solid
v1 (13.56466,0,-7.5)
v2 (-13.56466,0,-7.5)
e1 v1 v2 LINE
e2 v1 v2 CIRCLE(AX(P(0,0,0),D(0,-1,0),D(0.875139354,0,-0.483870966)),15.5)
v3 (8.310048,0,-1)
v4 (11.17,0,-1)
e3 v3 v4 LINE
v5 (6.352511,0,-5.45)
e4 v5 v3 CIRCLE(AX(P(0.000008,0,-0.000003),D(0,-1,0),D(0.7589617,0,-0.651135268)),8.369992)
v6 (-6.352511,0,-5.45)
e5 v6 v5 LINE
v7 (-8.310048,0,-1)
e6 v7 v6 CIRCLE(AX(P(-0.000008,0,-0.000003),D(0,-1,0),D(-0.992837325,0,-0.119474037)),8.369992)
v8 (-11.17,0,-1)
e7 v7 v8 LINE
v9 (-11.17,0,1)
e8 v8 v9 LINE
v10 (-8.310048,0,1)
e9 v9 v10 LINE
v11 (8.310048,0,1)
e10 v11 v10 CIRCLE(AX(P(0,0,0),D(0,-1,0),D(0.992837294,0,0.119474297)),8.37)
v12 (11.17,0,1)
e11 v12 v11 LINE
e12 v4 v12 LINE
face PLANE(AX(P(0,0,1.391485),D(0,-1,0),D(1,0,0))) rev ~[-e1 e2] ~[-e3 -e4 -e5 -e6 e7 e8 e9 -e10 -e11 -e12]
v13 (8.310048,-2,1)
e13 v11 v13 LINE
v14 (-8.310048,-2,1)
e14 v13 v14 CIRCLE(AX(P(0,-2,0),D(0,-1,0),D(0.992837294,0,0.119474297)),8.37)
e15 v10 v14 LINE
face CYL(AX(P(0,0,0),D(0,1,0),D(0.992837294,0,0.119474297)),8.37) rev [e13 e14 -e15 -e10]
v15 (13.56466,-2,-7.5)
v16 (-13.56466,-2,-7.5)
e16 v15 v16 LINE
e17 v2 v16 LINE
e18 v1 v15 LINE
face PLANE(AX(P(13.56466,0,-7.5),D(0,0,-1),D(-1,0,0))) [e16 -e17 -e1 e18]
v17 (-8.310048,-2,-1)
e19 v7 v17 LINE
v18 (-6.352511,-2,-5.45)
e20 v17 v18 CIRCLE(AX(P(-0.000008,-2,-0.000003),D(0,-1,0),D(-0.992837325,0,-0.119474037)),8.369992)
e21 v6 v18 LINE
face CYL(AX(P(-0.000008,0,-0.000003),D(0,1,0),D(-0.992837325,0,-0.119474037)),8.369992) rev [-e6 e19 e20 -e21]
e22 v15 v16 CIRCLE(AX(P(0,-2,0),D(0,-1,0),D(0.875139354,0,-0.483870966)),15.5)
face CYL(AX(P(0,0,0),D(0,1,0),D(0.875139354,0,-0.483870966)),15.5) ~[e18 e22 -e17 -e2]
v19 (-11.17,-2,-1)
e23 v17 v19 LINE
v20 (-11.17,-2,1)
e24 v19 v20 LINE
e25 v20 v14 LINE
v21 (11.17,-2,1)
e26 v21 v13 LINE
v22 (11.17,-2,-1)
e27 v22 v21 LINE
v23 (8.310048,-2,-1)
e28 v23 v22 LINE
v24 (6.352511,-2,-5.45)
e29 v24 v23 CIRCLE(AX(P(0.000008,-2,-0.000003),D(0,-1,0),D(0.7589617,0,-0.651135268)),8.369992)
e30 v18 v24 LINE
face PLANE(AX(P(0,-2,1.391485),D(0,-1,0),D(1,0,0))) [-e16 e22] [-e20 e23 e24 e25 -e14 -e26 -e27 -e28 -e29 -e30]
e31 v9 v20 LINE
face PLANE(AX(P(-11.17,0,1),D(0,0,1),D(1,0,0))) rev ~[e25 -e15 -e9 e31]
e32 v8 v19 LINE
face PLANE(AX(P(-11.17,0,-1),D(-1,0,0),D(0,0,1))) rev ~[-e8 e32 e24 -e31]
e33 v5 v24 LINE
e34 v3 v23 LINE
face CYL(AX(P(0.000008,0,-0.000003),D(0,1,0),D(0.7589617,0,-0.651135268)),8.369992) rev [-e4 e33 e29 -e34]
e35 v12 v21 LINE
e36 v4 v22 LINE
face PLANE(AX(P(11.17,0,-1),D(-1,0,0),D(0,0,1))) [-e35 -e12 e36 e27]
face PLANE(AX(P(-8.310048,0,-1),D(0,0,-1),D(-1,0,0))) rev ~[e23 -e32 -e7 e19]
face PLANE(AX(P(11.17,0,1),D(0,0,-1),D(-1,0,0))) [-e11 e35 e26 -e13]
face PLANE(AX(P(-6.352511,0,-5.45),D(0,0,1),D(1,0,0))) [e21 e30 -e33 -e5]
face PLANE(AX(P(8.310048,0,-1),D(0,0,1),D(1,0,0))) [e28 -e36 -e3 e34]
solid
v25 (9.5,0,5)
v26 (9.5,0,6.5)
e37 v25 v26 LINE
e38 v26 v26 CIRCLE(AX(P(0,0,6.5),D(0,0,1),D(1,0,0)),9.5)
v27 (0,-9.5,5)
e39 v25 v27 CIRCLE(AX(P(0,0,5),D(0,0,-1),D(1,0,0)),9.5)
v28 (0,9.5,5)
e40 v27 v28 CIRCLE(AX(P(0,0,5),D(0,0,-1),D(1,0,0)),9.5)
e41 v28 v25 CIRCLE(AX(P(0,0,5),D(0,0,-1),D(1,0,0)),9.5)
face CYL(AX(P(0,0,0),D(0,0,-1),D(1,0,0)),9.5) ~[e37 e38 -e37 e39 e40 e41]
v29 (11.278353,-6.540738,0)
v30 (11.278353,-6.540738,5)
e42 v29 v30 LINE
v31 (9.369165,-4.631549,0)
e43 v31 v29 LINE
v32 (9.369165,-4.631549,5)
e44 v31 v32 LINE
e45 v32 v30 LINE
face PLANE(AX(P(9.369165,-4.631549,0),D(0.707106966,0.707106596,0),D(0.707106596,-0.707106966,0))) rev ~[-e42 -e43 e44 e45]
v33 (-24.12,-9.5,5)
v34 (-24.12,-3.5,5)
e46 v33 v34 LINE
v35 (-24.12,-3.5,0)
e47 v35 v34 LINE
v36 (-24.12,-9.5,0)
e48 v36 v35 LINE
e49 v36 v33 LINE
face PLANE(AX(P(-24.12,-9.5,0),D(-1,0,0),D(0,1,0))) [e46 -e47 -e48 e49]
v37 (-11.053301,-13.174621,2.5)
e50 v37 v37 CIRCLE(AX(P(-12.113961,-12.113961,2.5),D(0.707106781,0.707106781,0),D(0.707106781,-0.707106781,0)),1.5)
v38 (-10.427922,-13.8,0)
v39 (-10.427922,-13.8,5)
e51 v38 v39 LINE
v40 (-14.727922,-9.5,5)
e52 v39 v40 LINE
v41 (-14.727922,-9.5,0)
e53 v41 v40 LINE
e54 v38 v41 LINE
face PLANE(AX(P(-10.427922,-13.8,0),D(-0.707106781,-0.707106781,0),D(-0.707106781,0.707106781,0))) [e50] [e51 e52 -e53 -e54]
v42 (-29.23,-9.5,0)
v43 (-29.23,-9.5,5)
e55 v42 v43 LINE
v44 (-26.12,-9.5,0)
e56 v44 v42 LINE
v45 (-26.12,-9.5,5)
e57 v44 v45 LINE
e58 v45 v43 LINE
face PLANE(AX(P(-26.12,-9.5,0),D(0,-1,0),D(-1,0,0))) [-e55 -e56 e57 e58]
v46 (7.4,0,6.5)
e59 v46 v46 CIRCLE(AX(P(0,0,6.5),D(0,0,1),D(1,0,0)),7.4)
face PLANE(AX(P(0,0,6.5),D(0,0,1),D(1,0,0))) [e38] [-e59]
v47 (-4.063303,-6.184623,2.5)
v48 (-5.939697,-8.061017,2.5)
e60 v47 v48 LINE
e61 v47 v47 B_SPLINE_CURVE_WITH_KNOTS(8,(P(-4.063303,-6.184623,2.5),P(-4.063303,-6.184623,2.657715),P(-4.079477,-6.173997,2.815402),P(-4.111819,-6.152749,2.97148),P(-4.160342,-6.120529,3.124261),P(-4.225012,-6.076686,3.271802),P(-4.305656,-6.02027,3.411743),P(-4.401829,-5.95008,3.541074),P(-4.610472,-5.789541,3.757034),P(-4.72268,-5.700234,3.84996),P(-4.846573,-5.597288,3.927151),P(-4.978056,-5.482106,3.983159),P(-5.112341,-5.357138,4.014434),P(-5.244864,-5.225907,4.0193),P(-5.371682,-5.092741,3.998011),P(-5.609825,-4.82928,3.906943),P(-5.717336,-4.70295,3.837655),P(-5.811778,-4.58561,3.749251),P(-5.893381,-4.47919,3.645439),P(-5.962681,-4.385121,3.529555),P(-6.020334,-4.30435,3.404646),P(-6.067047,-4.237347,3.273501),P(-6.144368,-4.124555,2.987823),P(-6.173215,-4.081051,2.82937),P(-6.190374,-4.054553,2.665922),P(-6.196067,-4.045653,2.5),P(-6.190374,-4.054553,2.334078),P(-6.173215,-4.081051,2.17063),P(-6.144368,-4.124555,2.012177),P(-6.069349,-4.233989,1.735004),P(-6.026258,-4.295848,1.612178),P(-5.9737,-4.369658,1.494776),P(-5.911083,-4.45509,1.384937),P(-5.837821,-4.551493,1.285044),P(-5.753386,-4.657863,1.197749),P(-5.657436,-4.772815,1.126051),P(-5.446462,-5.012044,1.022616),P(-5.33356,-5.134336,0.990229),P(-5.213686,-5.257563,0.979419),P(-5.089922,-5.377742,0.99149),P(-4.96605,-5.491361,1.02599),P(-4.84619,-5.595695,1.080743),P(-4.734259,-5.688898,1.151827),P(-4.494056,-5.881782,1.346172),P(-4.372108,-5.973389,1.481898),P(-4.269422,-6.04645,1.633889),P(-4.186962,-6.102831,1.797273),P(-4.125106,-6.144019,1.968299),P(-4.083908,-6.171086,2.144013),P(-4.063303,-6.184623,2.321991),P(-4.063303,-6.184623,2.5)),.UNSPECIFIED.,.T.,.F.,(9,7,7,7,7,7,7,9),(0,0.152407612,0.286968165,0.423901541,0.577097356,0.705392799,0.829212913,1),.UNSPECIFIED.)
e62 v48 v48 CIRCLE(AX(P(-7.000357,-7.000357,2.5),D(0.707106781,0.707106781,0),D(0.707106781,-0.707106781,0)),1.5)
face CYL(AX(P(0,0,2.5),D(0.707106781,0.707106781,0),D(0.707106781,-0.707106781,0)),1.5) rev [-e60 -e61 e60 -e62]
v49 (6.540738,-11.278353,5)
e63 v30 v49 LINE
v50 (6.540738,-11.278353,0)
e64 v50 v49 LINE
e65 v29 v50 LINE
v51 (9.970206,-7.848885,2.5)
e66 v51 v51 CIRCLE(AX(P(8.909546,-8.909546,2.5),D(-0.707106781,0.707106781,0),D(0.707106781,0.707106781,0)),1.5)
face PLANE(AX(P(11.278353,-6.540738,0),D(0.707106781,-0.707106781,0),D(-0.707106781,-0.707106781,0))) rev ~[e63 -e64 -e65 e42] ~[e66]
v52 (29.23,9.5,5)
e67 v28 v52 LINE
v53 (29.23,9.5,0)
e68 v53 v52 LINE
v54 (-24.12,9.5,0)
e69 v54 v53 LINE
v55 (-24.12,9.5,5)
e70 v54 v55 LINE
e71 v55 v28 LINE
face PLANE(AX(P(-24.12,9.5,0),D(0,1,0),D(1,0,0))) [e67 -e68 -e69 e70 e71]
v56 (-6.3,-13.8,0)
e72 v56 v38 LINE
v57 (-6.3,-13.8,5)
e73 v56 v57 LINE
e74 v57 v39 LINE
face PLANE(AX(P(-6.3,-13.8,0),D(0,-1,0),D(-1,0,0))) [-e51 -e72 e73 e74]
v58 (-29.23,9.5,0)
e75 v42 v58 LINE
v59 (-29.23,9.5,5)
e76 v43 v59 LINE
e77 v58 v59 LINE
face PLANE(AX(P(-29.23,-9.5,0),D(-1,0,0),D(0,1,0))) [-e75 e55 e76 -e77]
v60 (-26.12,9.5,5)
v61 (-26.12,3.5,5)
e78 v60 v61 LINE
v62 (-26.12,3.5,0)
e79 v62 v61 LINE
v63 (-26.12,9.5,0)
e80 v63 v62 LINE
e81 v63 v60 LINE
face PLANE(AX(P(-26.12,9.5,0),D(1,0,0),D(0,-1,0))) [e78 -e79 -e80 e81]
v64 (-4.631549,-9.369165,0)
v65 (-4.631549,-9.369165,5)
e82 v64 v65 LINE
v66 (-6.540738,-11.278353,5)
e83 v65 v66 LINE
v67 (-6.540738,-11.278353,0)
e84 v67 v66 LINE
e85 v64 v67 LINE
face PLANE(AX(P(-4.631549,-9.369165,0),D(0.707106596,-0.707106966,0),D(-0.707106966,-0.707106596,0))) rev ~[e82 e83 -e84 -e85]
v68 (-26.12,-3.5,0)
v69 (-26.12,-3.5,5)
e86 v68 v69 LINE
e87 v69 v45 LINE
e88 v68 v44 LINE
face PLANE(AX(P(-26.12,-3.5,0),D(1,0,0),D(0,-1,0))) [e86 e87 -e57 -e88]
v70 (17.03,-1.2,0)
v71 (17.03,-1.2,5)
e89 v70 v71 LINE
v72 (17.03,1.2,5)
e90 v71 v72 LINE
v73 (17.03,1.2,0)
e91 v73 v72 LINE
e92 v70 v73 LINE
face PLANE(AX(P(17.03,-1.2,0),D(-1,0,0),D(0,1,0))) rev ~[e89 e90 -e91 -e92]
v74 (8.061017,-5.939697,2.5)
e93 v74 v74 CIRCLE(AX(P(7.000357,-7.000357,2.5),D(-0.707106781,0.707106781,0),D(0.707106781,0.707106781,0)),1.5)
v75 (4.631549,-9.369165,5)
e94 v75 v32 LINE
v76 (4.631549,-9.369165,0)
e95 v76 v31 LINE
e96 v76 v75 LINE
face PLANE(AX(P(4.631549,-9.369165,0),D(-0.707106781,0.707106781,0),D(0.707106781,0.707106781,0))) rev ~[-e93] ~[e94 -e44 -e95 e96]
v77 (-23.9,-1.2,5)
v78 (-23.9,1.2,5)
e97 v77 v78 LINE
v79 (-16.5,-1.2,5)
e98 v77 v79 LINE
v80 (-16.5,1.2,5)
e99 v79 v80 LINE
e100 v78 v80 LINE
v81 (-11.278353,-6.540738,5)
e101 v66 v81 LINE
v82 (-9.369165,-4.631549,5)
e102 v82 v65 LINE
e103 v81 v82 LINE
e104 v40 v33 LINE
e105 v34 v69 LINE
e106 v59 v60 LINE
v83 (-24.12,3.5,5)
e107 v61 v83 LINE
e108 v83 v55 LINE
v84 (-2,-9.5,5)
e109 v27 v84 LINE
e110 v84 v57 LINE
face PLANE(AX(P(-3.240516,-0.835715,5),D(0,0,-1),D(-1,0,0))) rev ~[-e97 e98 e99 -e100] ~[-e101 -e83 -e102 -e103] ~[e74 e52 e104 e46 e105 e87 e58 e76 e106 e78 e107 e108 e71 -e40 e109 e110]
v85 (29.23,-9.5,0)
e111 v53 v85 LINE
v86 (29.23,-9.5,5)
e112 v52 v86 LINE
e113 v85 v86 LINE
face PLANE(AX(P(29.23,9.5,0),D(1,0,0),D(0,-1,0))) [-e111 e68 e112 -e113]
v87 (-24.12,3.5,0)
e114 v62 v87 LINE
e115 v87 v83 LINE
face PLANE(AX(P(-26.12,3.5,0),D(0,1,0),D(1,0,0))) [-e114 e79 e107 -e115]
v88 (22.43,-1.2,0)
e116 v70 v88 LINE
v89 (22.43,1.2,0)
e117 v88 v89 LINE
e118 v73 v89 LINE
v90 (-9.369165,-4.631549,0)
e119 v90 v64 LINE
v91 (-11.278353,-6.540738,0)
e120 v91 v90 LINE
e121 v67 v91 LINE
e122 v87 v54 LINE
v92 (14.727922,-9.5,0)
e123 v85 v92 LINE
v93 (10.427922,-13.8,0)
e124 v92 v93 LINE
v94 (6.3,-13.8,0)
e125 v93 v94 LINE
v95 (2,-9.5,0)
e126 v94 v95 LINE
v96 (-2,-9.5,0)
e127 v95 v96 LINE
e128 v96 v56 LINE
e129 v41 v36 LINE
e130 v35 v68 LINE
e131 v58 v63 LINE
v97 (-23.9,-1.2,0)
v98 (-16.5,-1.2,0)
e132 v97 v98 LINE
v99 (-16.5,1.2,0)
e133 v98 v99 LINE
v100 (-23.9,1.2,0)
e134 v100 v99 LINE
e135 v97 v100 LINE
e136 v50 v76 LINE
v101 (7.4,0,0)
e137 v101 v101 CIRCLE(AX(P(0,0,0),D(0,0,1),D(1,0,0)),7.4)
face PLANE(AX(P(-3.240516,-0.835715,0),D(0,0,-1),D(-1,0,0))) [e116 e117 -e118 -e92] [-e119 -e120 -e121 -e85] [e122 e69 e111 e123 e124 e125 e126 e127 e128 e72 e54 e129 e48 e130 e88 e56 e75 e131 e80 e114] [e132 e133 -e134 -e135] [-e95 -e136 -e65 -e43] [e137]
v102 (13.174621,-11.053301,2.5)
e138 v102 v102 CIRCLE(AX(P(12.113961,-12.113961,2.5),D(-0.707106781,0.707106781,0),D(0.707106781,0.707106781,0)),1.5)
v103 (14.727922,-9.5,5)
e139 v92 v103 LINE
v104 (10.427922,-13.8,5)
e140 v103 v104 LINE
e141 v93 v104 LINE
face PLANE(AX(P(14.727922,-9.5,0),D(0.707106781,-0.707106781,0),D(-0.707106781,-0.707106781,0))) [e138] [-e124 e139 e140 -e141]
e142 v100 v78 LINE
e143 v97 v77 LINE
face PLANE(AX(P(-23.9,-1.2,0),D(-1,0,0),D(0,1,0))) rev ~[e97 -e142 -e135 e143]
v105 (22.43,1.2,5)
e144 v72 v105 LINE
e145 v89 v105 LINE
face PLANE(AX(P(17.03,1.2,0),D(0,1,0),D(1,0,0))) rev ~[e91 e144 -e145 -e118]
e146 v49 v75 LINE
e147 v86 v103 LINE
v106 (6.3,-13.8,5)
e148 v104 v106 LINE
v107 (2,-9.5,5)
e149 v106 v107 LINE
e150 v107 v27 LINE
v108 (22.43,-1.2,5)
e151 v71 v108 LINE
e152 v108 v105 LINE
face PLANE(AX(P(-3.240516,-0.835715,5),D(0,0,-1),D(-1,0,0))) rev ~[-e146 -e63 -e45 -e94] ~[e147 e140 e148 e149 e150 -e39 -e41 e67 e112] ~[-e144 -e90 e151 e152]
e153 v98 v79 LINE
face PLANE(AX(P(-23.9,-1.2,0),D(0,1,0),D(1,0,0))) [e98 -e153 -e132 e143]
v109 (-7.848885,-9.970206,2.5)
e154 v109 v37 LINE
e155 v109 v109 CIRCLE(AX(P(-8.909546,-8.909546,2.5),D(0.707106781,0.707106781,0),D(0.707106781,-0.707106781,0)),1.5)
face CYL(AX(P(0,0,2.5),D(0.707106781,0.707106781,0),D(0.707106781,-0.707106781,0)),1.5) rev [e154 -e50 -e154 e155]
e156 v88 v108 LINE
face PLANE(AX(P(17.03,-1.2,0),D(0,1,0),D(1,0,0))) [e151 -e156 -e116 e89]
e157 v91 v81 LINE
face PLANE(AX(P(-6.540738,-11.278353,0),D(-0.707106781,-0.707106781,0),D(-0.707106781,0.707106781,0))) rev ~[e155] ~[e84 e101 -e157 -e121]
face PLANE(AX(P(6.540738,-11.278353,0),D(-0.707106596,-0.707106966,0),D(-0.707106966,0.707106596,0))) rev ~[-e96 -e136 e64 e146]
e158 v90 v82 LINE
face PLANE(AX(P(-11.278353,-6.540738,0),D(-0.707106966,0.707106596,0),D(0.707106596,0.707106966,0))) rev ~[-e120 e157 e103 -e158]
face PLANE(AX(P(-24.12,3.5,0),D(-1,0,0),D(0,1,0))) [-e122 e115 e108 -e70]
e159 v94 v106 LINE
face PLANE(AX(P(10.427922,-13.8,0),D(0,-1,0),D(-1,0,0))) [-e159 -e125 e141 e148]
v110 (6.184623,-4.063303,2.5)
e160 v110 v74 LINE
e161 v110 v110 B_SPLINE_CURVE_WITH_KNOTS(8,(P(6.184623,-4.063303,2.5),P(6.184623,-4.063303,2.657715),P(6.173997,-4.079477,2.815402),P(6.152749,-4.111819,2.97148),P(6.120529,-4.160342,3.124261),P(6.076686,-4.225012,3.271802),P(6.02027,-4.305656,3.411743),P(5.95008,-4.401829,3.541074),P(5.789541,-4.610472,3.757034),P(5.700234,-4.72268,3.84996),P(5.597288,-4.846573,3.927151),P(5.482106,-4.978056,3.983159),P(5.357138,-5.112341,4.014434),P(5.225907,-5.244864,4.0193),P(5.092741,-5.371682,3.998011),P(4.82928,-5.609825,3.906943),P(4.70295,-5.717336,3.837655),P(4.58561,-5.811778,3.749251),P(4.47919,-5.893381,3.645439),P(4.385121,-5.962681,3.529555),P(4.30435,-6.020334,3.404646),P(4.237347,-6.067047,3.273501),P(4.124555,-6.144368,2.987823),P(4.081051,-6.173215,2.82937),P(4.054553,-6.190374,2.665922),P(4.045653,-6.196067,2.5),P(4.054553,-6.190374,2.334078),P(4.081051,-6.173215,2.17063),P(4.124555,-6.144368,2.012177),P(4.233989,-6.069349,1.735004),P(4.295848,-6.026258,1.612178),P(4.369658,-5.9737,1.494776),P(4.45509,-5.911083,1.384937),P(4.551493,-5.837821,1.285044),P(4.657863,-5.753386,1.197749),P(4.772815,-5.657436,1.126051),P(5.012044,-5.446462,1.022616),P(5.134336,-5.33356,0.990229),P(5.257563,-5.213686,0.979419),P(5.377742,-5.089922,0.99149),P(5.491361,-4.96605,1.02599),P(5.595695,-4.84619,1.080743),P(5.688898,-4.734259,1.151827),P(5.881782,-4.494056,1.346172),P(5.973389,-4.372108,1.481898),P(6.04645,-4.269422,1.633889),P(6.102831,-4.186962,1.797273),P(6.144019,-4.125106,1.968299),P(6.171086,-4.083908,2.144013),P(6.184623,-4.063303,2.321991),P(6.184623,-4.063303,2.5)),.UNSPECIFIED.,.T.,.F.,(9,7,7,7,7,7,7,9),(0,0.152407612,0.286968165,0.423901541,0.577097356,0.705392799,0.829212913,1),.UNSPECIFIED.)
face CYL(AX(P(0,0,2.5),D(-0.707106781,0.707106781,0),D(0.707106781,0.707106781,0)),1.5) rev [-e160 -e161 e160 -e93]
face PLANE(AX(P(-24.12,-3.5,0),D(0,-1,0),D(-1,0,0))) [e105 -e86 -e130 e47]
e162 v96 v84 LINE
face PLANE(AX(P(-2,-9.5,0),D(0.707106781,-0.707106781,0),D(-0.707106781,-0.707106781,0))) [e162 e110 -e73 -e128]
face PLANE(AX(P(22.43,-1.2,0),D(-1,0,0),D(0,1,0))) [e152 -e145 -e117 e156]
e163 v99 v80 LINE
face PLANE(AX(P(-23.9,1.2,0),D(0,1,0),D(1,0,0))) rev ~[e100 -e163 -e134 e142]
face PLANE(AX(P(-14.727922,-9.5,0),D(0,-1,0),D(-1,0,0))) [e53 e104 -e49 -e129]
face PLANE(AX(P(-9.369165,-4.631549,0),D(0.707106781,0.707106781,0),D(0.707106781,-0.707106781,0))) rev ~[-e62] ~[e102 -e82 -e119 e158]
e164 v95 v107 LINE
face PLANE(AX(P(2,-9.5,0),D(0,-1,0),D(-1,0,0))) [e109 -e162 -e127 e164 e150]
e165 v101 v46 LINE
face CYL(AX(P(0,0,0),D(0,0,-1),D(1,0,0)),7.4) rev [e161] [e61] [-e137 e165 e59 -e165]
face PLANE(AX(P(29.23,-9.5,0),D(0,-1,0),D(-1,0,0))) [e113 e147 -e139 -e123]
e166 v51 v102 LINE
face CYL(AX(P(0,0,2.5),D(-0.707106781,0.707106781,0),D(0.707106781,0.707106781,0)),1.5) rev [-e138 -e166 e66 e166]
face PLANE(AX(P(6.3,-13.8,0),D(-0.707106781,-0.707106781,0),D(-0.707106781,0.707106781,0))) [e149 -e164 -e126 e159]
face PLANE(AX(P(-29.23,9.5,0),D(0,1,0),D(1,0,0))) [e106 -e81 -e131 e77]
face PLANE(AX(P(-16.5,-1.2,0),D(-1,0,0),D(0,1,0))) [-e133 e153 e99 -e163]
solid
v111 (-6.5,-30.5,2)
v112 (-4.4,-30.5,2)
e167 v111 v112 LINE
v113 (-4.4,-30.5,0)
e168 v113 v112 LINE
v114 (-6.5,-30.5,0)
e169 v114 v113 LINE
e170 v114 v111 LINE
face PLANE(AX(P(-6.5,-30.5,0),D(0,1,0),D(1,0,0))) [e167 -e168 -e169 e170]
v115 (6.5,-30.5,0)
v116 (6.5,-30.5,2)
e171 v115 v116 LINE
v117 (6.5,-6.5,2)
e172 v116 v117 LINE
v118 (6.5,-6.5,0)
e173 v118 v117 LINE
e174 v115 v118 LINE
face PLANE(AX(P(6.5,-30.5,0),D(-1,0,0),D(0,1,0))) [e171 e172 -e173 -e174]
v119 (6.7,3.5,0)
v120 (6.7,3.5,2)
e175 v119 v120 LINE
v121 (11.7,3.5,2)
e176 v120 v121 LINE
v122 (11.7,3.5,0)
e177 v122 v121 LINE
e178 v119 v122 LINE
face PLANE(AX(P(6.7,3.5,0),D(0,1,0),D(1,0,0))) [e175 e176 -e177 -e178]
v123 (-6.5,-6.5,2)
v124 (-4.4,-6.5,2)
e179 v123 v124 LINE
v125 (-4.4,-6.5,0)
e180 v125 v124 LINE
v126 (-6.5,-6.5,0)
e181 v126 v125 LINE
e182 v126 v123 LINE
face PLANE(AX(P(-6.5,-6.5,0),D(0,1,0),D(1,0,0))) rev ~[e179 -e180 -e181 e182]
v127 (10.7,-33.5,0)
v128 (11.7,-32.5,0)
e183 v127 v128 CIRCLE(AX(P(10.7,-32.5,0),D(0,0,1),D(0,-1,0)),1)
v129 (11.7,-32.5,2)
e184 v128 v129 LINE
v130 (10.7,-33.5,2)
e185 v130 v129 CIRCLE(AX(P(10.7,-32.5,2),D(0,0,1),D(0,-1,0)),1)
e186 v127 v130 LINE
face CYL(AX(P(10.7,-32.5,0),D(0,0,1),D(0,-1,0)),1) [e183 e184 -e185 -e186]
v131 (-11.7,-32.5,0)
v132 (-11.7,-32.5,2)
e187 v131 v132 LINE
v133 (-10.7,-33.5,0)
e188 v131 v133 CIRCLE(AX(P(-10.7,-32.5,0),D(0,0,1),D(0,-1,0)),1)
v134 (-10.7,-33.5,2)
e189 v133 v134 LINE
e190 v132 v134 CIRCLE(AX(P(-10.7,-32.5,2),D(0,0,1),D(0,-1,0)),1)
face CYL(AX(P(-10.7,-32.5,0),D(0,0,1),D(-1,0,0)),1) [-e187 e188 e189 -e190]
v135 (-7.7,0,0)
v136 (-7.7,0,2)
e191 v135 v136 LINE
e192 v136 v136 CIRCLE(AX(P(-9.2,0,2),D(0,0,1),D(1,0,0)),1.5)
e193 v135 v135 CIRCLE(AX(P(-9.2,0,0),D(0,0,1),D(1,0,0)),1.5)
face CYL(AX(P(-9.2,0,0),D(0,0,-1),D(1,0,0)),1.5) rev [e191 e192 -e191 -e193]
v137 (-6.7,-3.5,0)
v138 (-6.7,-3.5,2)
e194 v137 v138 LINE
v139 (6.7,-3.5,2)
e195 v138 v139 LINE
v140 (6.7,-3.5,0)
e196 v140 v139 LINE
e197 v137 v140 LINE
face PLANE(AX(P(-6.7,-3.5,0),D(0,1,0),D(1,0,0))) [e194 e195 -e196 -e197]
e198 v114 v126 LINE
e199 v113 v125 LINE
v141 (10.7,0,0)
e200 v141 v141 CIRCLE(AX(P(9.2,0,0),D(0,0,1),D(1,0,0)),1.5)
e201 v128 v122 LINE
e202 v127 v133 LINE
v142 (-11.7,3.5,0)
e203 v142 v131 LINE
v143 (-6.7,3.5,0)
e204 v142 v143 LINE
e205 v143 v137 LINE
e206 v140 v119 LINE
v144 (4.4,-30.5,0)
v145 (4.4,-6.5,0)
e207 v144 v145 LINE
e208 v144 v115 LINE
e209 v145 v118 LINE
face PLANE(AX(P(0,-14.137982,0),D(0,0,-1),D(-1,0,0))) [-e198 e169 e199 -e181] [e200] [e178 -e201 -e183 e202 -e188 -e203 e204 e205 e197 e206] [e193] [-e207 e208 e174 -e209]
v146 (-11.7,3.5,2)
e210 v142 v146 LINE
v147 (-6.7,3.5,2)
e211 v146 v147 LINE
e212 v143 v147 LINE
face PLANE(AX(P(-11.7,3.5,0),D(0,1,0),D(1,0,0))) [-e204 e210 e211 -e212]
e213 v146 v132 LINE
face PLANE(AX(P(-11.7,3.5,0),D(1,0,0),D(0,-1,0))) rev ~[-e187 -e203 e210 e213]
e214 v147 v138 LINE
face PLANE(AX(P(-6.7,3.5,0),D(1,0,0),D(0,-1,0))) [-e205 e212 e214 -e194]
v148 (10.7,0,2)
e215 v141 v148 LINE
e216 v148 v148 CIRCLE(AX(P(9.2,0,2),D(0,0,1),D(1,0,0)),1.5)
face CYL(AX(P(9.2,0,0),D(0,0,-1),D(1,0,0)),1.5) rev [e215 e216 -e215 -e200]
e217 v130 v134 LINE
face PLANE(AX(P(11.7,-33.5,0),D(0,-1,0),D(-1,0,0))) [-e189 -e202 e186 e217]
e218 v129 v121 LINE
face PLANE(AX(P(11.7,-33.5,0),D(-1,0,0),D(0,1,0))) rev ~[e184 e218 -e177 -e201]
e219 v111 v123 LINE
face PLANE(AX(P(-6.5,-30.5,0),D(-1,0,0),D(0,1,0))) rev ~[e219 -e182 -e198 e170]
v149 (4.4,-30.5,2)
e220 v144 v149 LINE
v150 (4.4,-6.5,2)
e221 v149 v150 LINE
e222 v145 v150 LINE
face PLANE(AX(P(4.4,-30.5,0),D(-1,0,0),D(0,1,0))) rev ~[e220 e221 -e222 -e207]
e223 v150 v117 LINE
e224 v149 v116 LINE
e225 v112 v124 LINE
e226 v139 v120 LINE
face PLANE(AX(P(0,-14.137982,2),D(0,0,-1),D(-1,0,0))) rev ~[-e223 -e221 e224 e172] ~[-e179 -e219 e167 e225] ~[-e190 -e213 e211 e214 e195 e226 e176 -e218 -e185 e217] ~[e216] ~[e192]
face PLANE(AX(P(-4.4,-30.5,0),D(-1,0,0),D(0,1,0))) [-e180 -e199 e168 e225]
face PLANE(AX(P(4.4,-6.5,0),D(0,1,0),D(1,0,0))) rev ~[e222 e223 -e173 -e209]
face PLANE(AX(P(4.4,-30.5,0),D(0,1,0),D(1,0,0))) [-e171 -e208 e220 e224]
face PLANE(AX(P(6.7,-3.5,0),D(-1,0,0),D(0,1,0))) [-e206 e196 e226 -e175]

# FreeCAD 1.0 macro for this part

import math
import FreeCAD as App
import Part
import Sketcher
Q = App.Units.Quantity


def edges_at(feature, points):
    """Names of the edges that pass closest to the given points."""
    edges = feature.Shape.Edges
    near = lambda p: min(range(len(edges)), key=lambda i: edges[i].distToShape(Part.Vertex(*p))[0])
    return sorted({f"Edge{near(p) + 1}" for p in points})

doc = App.newDocument("Part")
params = doc.addObject("Spreadsheet::Sheet", "Params")
for row, (alias, value) in enumerate([
    ("sketch1_diameter", "3 mm"),
    ("sketch1_width", "5 mm"),
    ("sketch1_height", "37 mm"),
    ("sketch1_height2", "7 mm"),
    ("sketch1_height3", "24 mm"),
    ("pad1_length", "2 mm"),
    ("fillet_radius", "1 mm"),
    ("sketch2_diameter", "14.8 mm"),
    ("sketch2_width", "2 mm"),
    ("sketch2_width2", "4 mm"),
    ("sketch2_height", "19 mm"),
    ("sketch2_height2", "6 mm"),
    ("pad2_length", "5 mm"),
    ("sketch3_diameter", "19 mm"),
    ("sketch3_diameter2", "14.8 mm"),
    ("pad3_length", "6.5 mm"),
    ("sketch4_diameter", "3 mm"),
    ("sketch5_diameter", "2.1 mm"),
    ("pocket2_length", "15 mm"),
    ("sketch6_radius", "15.5 mm"),
    ("sketch6_height", "2 mm"),
    ("sketch6_radius2", "8.37 mm"),
    ("pad4_length", "2 mm"),
], start=1):
    params.set(f"A{row}", alias)
    params.set(f"B{row}", "=" + value)
    params.setAlias(f"B{row}", alias)

body = doc.addObject("PartDesign::Body", "Body")

# Sketch on XY plane
sketch1 = doc.addObject("Sketcher::SketchObject", "Sketch")
body.addObject(sketch1)
sketch1.AttachmentSupport = (doc.XY_Plane, [""])
sketch1.MapMode = "FlatFace"
sketch1.addGeometry([
    Part.LineSegment(App.Vector(-6.7, 3.5, 0), App.Vector(-11.7, 3.5, 0)),  # 0
    Part.LineSegment(App.Vector(-11.7, 3.5, 0), App.Vector(-11.7, -33.5, 0)),  # 1
    Part.LineSegment(App.Vector(-11.7, -33.5, 0), App.Vector(11.7, -33.5, 0)),  # 2
    Part.LineSegment(App.Vector(11.7, -33.5, 0), App.Vector(11.7, 3.5, 0)),  # 3
    Part.LineSegment(App.Vector(11.7, 3.5, 0), App.Vector(6.7, 3.5, 0)),  # 4
    Part.LineSegment(App.Vector(6.7, 3.5, 0), App.Vector(6.7, -3.5, 0)),  # 5
    Part.LineSegment(App.Vector(6.7, -3.5, 0), App.Vector(-6.7, -3.5, 0)),  # 6
    Part.LineSegment(App.Vector(-6.7, -3.5, 0), App.Vector(-6.7, 3.5, 0)),  # 7
    Part.LineSegment(App.Vector(4.4, -30.5, 0), App.Vector(4.4, -6.5, 0)),  # 8
    Part.LineSegment(App.Vector(4.4, -6.5, 0), App.Vector(6.5, -6.5, 0)),  # 9
    Part.LineSegment(App.Vector(6.5, -6.5, 0), App.Vector(6.5, -30.5, 0)),  # 10
    Part.LineSegment(App.Vector(6.5, -30.5, 0), App.Vector(4.4, -30.5, 0)),  # 11
    Part.LineSegment(App.Vector(-6.5, -30.5, 0), App.Vector(-6.5, -6.5, 0)),  # 12
    Part.LineSegment(App.Vector(-6.5, -6.5, 0), App.Vector(-4.4, -6.5, 0)),  # 13
    Part.LineSegment(App.Vector(-4.4, -6.5, 0), App.Vector(-4.4, -30.5, 0)),  # 14
    Part.LineSegment(App.Vector(-4.4, -30.5, 0), App.Vector(-6.5, -30.5, 0)),  # 15
    Part.Circle(App.Vector(9.2, 0, 0), App.Vector(0, 0, 1), 1.5),  # 16
    Part.Circle(App.Vector(-9.2, 0, 0), App.Vector(0, 0, 1), 1.5),  # 17
], False)
sketch1.addConstraint([
    Sketcher.Constraint("Coincident", 0, 2, 1, 1),
    Sketcher.Constraint("Coincident", 1, 2, 2, 1),
    Sketcher.Constraint("Coincident", 2, 2, 3, 1),
    Sketcher.Constraint("Coincident", 3, 2, 4, 1),
    Sketcher.Constraint("Coincident", 4, 2, 5, 1),
    Sketcher.Constraint("Coincident", 5, 2, 6, 1),
    Sketcher.Constraint("Coincident", 6, 2, 7, 1),
    Sketcher.Constraint("Coincident", 7, 2, 0, 1),
    Sketcher.Constraint("Coincident", 8, 2, 9, 1),
    Sketcher.Constraint("Coincident", 9, 2, 10, 1),
    Sketcher.Constraint("Coincident", 10, 2, 11, 1),
    Sketcher.Constraint("Coincident", 11, 2, 8, 1),
    Sketcher.Constraint("Coincident", 12, 2, 13, 1),
    Sketcher.Constraint("Coincident", 13, 2, 14, 1),
    Sketcher.Constraint("Coincident", 14, 2, 15, 1),
    Sketcher.Constraint("Coincident", 15, 2, 12, 1),
    Sketcher.Constraint("Horizontal", 0),
    Sketcher.Constraint("Vertical", 1),
    Sketcher.Constraint("Horizontal", 2),
    Sketcher.Constraint("Vertical", 3),
    Sketcher.Constraint("Horizontal", 4),
    Sketcher.Constraint("Vertical", 5),
    Sketcher.Constraint("Horizontal", 6),
    Sketcher.Constraint("Vertical", 7),
    Sketcher.Constraint("Vertical", 8),
    Sketcher.Constraint("Horizontal", 9),
    Sketcher.Constraint("Vertical", 10),
    Sketcher.Constraint("Horizontal", 11),
    Sketcher.Constraint("Vertical", 12),
    Sketcher.Constraint("Horizontal", 13),
    Sketcher.Constraint("Vertical", 14),
    Sketcher.Constraint("Horizontal", 15),
    Sketcher.Constraint("Equal", 16, 17),
    Sketcher.Constraint("Symmetric", 16, 3, 17, 3, -1, 1),
    Sketcher.Constraint("Symmetric", 4, 2, 6, 2, -1, 1),
    Sketcher.Constraint("Symmetric", 0, 2, 3, 2, -2),
    Sketcher.Constraint("Symmetric", 9, 2, 12, 2, -2),
    Sketcher.Constraint("Symmetric", 11, 2, 14, 2, -2),
    Sketcher.Constraint("PointOnObject", 16, 3, -1),
    Sketcher.Constraint("Diameter", 16, Q("3 mm")),
    Sketcher.Constraint("DistanceX", 0, 2, 0, 1, Q("5 mm")),
    Sketcher.Constraint("DistanceY", 1, 2, 1, 1, Q("37 mm")),
    Sketcher.Constraint("DistanceY", 5, 2, 5, 1, Q("7 mm")),
    Sketcher.Constraint("DistanceY", 8, 1, 8, 2, Q("24 mm")),
    Sketcher.Constraint("DistanceX", 2, 1, 2, 2, Q("23.4 mm")),
    Sketcher.Constraint("DistanceX", 9, 1, 9, 2, Q("2.1 mm")),
    Sketcher.Constraint("DistanceY", 8, 2, 5, 2, Q("3 mm")),
    Sketcher.Constraint("DistanceX", 15, 2, 10, 2, Q("13 mm")),
    Sketcher.Constraint("DistanceX", -1, 1, 16, 3, Q("9.2 mm")),
])
sketch1.setExpression("Constraints[39]", "Params.sketch1_diameter")
sketch1.setExpression("Constraints[40]", "Params.sketch1_width")
sketch1.setExpression("Constraints[41]", "Params.sketch1_height")
sketch1.setExpression("Constraints[42]", "Params.sketch1_height2")
sketch1.setExpression("Constraints[43]", "Params.sketch1_height3")
pad1 = doc.addObject("PartDesign::Pad", "Pad")
body.addObject(pad1)
pad1.Profile = sketch1
pad1.setExpression("Length", "Params.pad1_length")
doc.recompute()

fillet = doc.addObject("PartDesign::Fillet", "Fillet")
body.addObject(fillet)
fillet.Base = (pad1, edges_at(pad1, [(-11.7, -33.5, 1), (11.7, -33.5, 1)]))
fillet.setExpression("Radius", "Params.fillet_radius")
body2 = doc.addObject("PartDesign::Body", "Body001")

# Sketch on XY plane
sketch2 = doc.addObject("Sketcher::SketchObject", "Sketch001")
body2.addObject(sketch2)
sketch2.AttachmentSupport = (doc.getObject("XY_Plane001"), [""])
sketch2.MapMode = "FlatFace"
sketch2.addGeometry([
    Part.LineSegment(App.Vector(29.2, -9.5, 0), App.Vector(29.2, 9.5, 0)),  # 0
    Part.LineSegment(App.Vector(29.2, 9.5, 0), App.Vector(-24.1, 9.5, 0)),  # 1
    Part.LineSegment(App.Vector(-24.1, 9.5, 0), App.Vector(-24.1, 3.5, 0)),  # 2
    Part.LineSegment(App.Vector(-24.1, 3.5, 0), App.Vector(-26.1, 3.5, 0)),  # 3
    Part.LineSegment(App.Vector(-26.1, 3.5, 0), App.Vector(-26.1, 9.5, 0)),  # 4
    Part.LineSegment(App.Vector(-26.1, 9.5, 0), App.Vector(-29.2, 9.5, 0)),  # 5
    Part.LineSegment(App.Vector(-29.2, 9.5, 0), App.Vector(-29.2, -9.5, 0)),  # 6
    Part.LineSegment(App.Vector(-29.2, -9.5, 0), App.Vector(-26.1, -9.5, 0)),  # 7
    Part.LineSegment(App.Vector(-26.1, -9.5, 0), App.Vector(-26.1, -3.5, 0)),  # 8
    Part.LineSegment(App.Vector(-26.1, -3.5, 0), App.Vector(-24.1, -3.5, 0)),  # 9
    Part.LineSegment(App.Vector(-24.1, -3.5, 0), App.Vector(-24.1, -9.5, 0)),  # 10
    Part.LineSegment(App.Vector(-24.1, -9.5, 0), App.Vector(-14.7, -9.5, 0)),  # 11
    Part.LineSegment(App.Vector(-14.7, -9.5, 0), App.Vector(-10.4, -13.8, 0)),  # 12
    Part.LineSegment(App.Vector(-10.4, -13.8, 0), App.Vector(-6.3, -13.8, 0)),  # 13
    Part.LineSegment(App.Vector(-6.3, -13.8, 0), App.Vector(-2, -9.5, 0)),  # 14
    Part.LineSegment(App.Vector(-2, -9.5, 0), App.Vector(2, -9.5, 0)),  # 15
    Part.LineSegment(App.Vector(2, -9.5, 0), App.Vector(6.3, -13.8, 0)),  # 16
    Part.LineSegment(App.Vector(6.3, -13.8, 0), App.Vector(10.4, -13.8, 0)),  # 17
    Part.LineSegment(App.Vector(10.4, -13.8, 0), App.Vector(14.7, -9.5, 0)),  # 18
    Part.LineSegment(App.Vector(14.7, -9.5, 0), App.Vector(29.2, -9.5, 0)),  # 19
    Part.LineSegment(App.Vector(4.6, -9.4, 0), App.Vector(9.4, -4.6, 0)),  # 20
    Part.LineSegment(App.Vector(9.4, -4.6, 0), App.Vector(11.3, -6.5, 0)),  # 21
    Part.LineSegment(App.Vector(11.3, -6.5, 0), App.Vector(6.5, -11.3, 0)),  # 22
    Part.LineSegment(App.Vector(6.5, -11.3, 0), App.Vector(4.6, -9.4, 0)),  # 23
    Part.LineSegment(App.Vector(-9.4, -4.6, 0), App.Vector(-4.6, -9.4, 0)),  # 24
    Part.LineSegment(App.Vector(-4.6, -9.4, 0), App.Vector(-6.5, -11.3, 0)),  # 25
    Part.LineSegment(App.Vector(-6.5, -11.3, 0), App.Vector(-11.3, -6.5, 0)),  # 26
    Part.LineSegment(App.Vector(-11.3, -6.5, 0), App.Vector(-9.4, -4.6, 0)),  # 27
    Part.LineSegment(App.Vector(17, -1.2, 0), App.Vector(17, 1.2, 0)),  # 28
    Part.LineSegment(App.Vector(17, 1.2, 0), App.Vector(22.4, 1.2, 0)),  # 29
    Part.LineSegment(App.Vector(22.4, 1.2, 0), App.Vector(22.4, -1.2, 0)),  # 30
    Part.LineSegment(App.Vector(22.4, -1.2, 0), App.Vector(17, -1.2, 0)),  # 31
    Part.Circle(App.Vector(0, 0, 0), App.Vector(0, 0, 1), 7.4),  # 32
    Part.LineSegment(App.Vector(-23.9, -1.2, 0), App.Vector(-23.9, 1.2, 0)),  # 33
    Part.LineSegment(App.Vector(-23.9, 1.2, 0), App.Vector(-16.5, 1.2, 0)),  # 34
    Part.LineSegment(App.Vector(-16.5, 1.2, 0), App.Vector(-16.5, -1.2, 0)),  # 35
    Part.LineSegment(App.Vector(-16.5, -1.2, 0), App.Vector(-23.9, -1.2, 0)),  # 36
], False)
sketch2.addConstraint([
    Sketcher.Constraint("Coincident", 0, 2, 1, 1),
    Sketcher.Constraint("Coincident", 1, 2, 2, 1),
    Sketcher.Constraint("Coincident", 2, 2, 3, 1),
    Sketcher.Constraint("Coincident", 3, 2, 4, 1),
    Sketcher.Constraint("Coincident", 4, 2, 5, 1),
    Sketcher.Constraint("Coincident", 5, 2, 6, 1),
    Sketcher.Constraint("Coincident", 6, 2, 7, 1),
    Sketcher.Constraint("Coincident", 7, 2, 8, 1),
    Sketcher.Constraint("Coincident", 8, 2, 9, 1),
    Sketcher.Constraint("Coincident", 9, 2, 10, 1),
    Sketcher.Constraint("Coincident", 10, 2, 11, 1),
    Sketcher.Constraint("Coincident", 11, 2, 12, 1),
    Sketcher.Constraint("Coincident", 12, 2, 13, 1),
    Sketcher.Constraint("Coincident", 13, 2, 14, 1),
    Sketcher.Constraint("Coincident", 14, 2, 15, 1),
    Sketcher.Constraint("Coincident", 15, 2, 16, 1),
    Sketcher.Constraint("Coincident", 16, 2, 17, 1),
    Sketcher.Constraint("Coincident", 17, 2, 18, 1),
    Sketcher.Constraint("Coincident", 18, 2, 19, 1),
    Sketcher.Constraint("Coincident", 19, 2, 0, 1),
    Sketcher.Constraint("Coincident", 20, 2, 21, 1),
    Sketcher.Constraint("Coincident", 21, 2, 22, 1),
    Sketcher.Constraint("Coincident", 22, 2, 23, 1),
    Sketcher.Constraint("Coincident", 23, 2, 20, 1),
    Sketcher.Constraint("Coincident", 24, 2, 25, 1),
    Sketcher.Constraint("Coincident", 25, 2, 26, 1),
    Sketcher.Constraint("Coincident", 26, 2, 27, 1),
    Sketcher.Constraint("Coincident", 27, 2, 24, 1),
    Sketcher.Constraint("Coincident", 28, 2, 29, 1),
    Sketcher.Constraint("Coincident", 29, 2, 30, 1),
    Sketcher.Constraint("Coincident", 30, 2, 31, 1),
    Sketcher.Constraint("Coincident", 31, 2, 28, 1),
    Sketcher.Constraint("Coincident", 33, 2, 34, 1),
    Sketcher.Constraint("Coincident", 34, 2, 35, 1),
    Sketcher.Constraint("Coincident", 35, 2, 36, 1),
    Sketcher.Constraint("Coincident", 36, 2, 33, 1),
    Sketcher.Constraint("Vertical", 0),
    Sketcher.Constraint("Horizontal", 1),
    Sketcher.Constraint("Vertical", 2),
    Sketcher.Constraint("Horizontal", 3),
    Sketcher.Constraint("Vertical", 4),
    Sketcher.Constraint("Horizontal", 5),
    Sketcher.Constraint("Vertical", 6),
    Sketcher.Constraint("Horizontal", 7),
    Sketcher.Constraint("Vertical", 8),
    Sketcher.Constraint("Horizontal", 9),
    Sketcher.Constraint("Vertical", 10),
    Sketcher.Constraint("Horizontal", 11),
    Sketcher.Constraint("Horizontal", 13),
    Sketcher.Constraint("Horizontal", 15),
    Sketcher.Constraint("Horizontal", 17),
    Sketcher.Constraint("Horizontal", 19),
    Sketcher.Constraint("Vertical", 28),
    Sketcher.Constraint("Horizontal", 29),
    Sketcher.Constraint("Vertical", 30),
    Sketcher.Constraint("Horizontal", 31),
    Sketcher.Constraint("Vertical", 33),
    Sketcher.Constraint("Horizontal", 34),
    Sketcher.Constraint("Vertical", 35),
    Sketcher.Constraint("Horizontal", 36),
    Sketcher.Constraint("Coincident", 32, 3, -1, 1),
    Sketcher.Constraint("Symmetric", 0, 2, 6, 2, -1, 1),
    Sketcher.Constraint("Symmetric", 13, 2, 16, 2, -2),
    Sketcher.Constraint("Symmetric", 11, 2, 18, 2, -2),
    Sketcher.Constraint("Symmetric", 23, 2, 24, 2, -2),
    Sketcher.Constraint("Symmetric", 22, 2, 25, 2, -2),
    Sketcher.Constraint("Symmetric", 21, 2, 26, 2, -2),
    Sketcher.Constraint("Symmetric", 20, 2, 27, 2, -2),
    Sketcher.Constraint("Symmetric", 4, 2, 7, 2, -1),
    Sketcher.Constraint("Symmetric", 2, 2, 9, 2, -1),
    Sketcher.Constraint("Perpendicular", 12, 14),
    Sketcher.Constraint("Perpendicular", 14, 16),
    Sketcher.Constraint("Perpendicular", 16, 18),
    Sketcher.Constraint("Parallel", 18, 20),
    Sketcher.Constraint("Perpendicular", 20, 21),
    Sketcher.Constraint("Perpendicular", 21, 22),
    Sketcher.Constraint("Perpendicular", 22, 23),
    Sketcher.Constraint("Parallel", 23, 24),
    Sketcher.Constraint("Horizontal", 7, 2, 10, 2),
    Sketcher.Constraint("Horizontal", 11, 2, 14, 2),
    Sketcher.Constraint("Horizontal", 29, 2, 33, 2),
    Sketcher.Constraint("Horizontal", 31, 2, 35, 2),
    Sketcher.Constraint("Diameter", 32, Q("14.8 mm")),
    Sketcher.Constraint("DistanceX", 3, 2, 3, 1, Q("2 mm")),
    Sketcher.Constraint("DistanceX", 15, 1, 15, 2, Q("4 mm")),
    Sketcher.Constraint("DistanceY", 0, 1, 0, 2, Q("19 mm")),
    Sketcher.Constraint("DistanceY", 2, 2, 2, 1, Q("6 mm")),
    Sketcher.Constraint("DistanceX", 29, 1, 29, 2, Q("5.4 mm")),
    Sketcher.Constraint("DistanceX", 34, 1, 34, 2, Q("7.4 mm")),
    Sketcher.Constraint("DistanceY", 28, 1, 28, 2, Q("2.4 mm")),
    Sketcher.Constraint("Distance", 20, Q("6.700001 mm")),
    Sketcher.Constraint("Distance", 21, Q("2.7 mm")),
    Sketcher.Constraint("DistanceX", 1, 2, 1, 1, Q("53.35 mm")),
    Sketcher.Constraint("DistanceX", 5, 2, 5, 1, Q("3.11 mm")),
    Sketcher.Constraint("DistanceY", 12, 2, -1, 1, Q("13.8 mm")),
    Sketcher.Constraint("DistanceY", -1, 1, 28, 2, Q("1.2 mm")),
    Sketcher.Constraint("DistanceX", 33, 2, -1, 1, Q("23.9 mm")),
    Sketcher.Constraint("DistanceX", 28, 2, 0, 2, Q("12.2 mm")),
    Sketcher.Constraint("DistanceX", 11, 1, 11, 2, Q("9.392078 mm")),
    Sketcher.Constraint("DistanceY", 20, 2, -1, 1, Q("4.631549 mm")),
    Sketcher.Constraint("DistanceX", -1, 1, 23, 2, Q("4.631549 mm")),
])
sketch2.setExpression("Constraints[82]", "Params.sketch2_diameter")
sketch2.setExpression("Constraints[83]", "Params.sketch2_width")
sketch2.setExpression("Constraints[84]", "Params.sketch2_width2")
sketch2.setExpression("Constraints[85]", "Params.sketch2_height")
sketch2.setExpression("Constraints[86]", "Params.sketch2_height2")
pad2 = doc.addObject("PartDesign::Pad", "Pad001")
body2.addObject(pad2)
pad2.Profile = sketch2
pad2.setExpression("Length", "Params.pad2_length")

# Sketch on XY plane
sketch3 = doc.addObject("Sketcher::SketchObject", "Sketch002")
body2.addObject(sketch3)
sketch3.AttachmentSupport = (doc.getObject("XY_Plane001"), [""])
sketch3.MapMode = "FlatFace"
sketch3.addGeometry([
    Part.Circle(App.Vector(0, 0, 0), App.Vector(0, 0, 1), 10),
    Part.Circle(App.Vector(0, 0, 0), App.Vector(0, 0, 1), 7),
], False)
sketch3.addConstraint([
    Sketcher.Constraint("Coincident", 0, 3, -1, 1),
    Sketcher.Constraint("Coincident", 1, 3, -1, 1),
    Sketcher.Constraint("Diameter", 0, Q("19 mm")),
    Sketcher.Constraint("Diameter", 1, Q("14.8 mm")),
])
sketch3.setExpression("Constraints[2]", "Params.sketch3_diameter")
sketch3.setExpression("Constraints[3]", "Params.sketch3_diameter2")
pad3 = doc.addObject("PartDesign::Pad", "Pad002")
body2.addObject(pad3)
pad3.Profile = sketch3
pad3.setExpression("Length", "Params.pad3_length")

# Sketch on an angled plane
sketch4 = doc.addObject("Sketcher::SketchObject", "Sketch003")
body2.addObject(sketch4)
sketch4.Placement = App.Placement(App.Vector(0, 0, 0), App.Rotation(App.Vector(0.707106781, 0.707106781, 0), App.Vector(0, 0, 0.999999999), App.Vector(0.707106781, -0.707106781, 0), "ZXY"))
sketch4.addGeometry(Part.Circle(App.Vector(0, 2.5, 0), App.Vector(0, 0, 1), 1.5), False)
sketch4.addConstraint([
    Sketcher.Constraint("PointOnObject", 0, 3, -2),
    Sketcher.Constraint("Diameter", 0, Q("3 mm")),
    Sketcher.Constraint("DistanceY", -1, 1, 0, 3, Q("2.5 mm")),
])
sketch4.setExpression("Constraints[1]", "Params.sketch4_diameter")
pocket1 = doc.addObject("PartDesign::Pocket", "Pocket")
body2.addObject(pocket1)
pocket1.Profile = sketch4
pocket1.Type = "ThroughAll"
pocket1.Reversed = True
doc.recompute()

polarpattern = doc.addObject("PartDesign::PolarPattern", "PolarPattern")
body2.addObject(polarpattern)
polarpattern.Originals = [pocket1]
polarpattern.Axis = (doc.getObject("Z_Axis001"), [""])
polarpattern.Angle = 90
polarpattern.Occurrences = 2
polarpattern.Reversed = True
body2.Tip = polarpattern

# Sketch on YZ plane
sketch5 = doc.addObject("Sketcher::SketchObject", "Sketch004")
body2.addObject(sketch5)
sketch5.AttachmentSupport = (doc.getObject("YZ_Plane001"), [""])
sketch5.MapMode = "FlatFace"
sketch5.AttachmentOffset = App.Placement(App.Vector(0, 0, -30), App.Rotation())
sketch5.addGeometry([
    Part.Circle(App.Vector(-11.7, 2.5, 0), App.Vector(0, 0, 1), 1.1),
    Part.Circle(App.Vector(11.7, 2.5, 0), App.Vector(0, 0, 1), 1.1),
], False)
sketch5.addConstraint([
    Sketcher.Constraint("Equal", 0, 1),
    Sketcher.Constraint("Symmetric", 0, 3, 1, 3, -2),
    Sketcher.Constraint("Diameter", 0, Q("2.1 mm")),
    Sketcher.Constraint("DistanceY", -1, 1, 0, 3, Q("2.5 mm")),
    Sketcher.Constraint("DistanceX", 0, 3, 1, 3, Q("23.3 mm")),
])
sketch5.setExpression("Constraints[2]", "Params.sketch5_diameter")
pocket2 = doc.addObject("PartDesign::Pocket", "Pocket001")
body2.addObject(pocket2)
pocket2.Profile = sketch5
pocket2.setExpression("Length", "Params.pocket2_length")
pocket2.Reversed = True
body3 = doc.addObject("PartDesign::Body", "Body002")

# Sketch on XZ plane
sketch6 = doc.addObject("Sketcher::SketchObject", "Sketch005")
body3.addObject(sketch6)
sketch6.AttachmentSupport = (doc.getObject("XZ_Plane002"), [""])
sketch6.MapMode = "FlatFace"
sketch6.addGeometry([
    Part.ArcOfCircle(Part.Circle(App.Vector(0, 0, 0), App.Vector(0, 0, 1), 15.5), math.radians(-29), math.radians(209)),  # 0
    Part.LineSegment(App.Vector(-13.6, -7.5, 0), App.Vector(13.6, -7.5, 0)),  # 1
    Part.ArcOfCircle(Part.Circle(App.Vector(0, 0, 0), App.Vector(0, 0, 1), 8.4), math.radians(7), math.radians(173)),  # 2
    Part.LineSegment(App.Vector(8.3, 1, 0), App.Vector(11.2, 1, 0)),  # 3
    Part.LineSegment(App.Vector(11.2, 1, 0), App.Vector(11.2, -1, 0)),  # 4
    Part.LineSegment(App.Vector(11.2, -1, 0), App.Vector(8.3, -1, 0)),  # 5
    Part.ArcOfCircle(Part.Circle(App.Vector(0, 0, 0), App.Vector(0, 0, 1), 8.4), math.radians(-41), math.radians(-7)),  # 6
    Part.LineSegment(App.Vector(6.4, -5.5, 0), App.Vector(-6.4, -5.5, 0)),  # 7
    Part.ArcOfCircle(Part.Circle(App.Vector(0, 0, 0), App.Vector(0, 0, 1), 8.4), math.radians(-173), math.radians(-139)),  # 8
    Part.LineSegment(App.Vector(-8.3, -1, 0), App.Vector(-11.2, -1, 0)),  # 9
    Part.LineSegment(App.Vector(-11.2, -1, 0), App.Vector(-11.2, 1, 0)),  # 10
    Part.LineSegment(App.Vector(-11.2, 1, 0), App.Vector(-8.3, 1, 0)),  # 11
], False)
sketch6.addConstraint([
    Sketcher.Constraint("Coincident", 0, 1, 1, 2),
    Sketcher.Constraint("Coincident", 1, 1, 0, 2),
    Sketcher.Constraint("Coincident", 2, 1, 3, 1),
    Sketcher.Constraint("Coincident", 3, 2, 4, 1),
    Sketcher.Constraint("Coincident", 4, 2, 5, 1),
    Sketcher.Constraint("Coincident", 5, 2, 6, 2),
    Sketcher.Constraint("Coincident", 6, 1, 7, 1),
    Sketcher.Constraint("Coincident", 7, 2, 8, 2),
    Sketcher.Constraint("Coincident", 8, 1, 9, 1),
    Sketcher.Constraint("Coincident", 9, 2, 10, 1),
    Sketcher.Constraint("Coincident", 10, 2, 11, 1),
    Sketcher.Constraint("Coincident", 11, 2, 2, 2),
    Sketcher.Constraint("Horizontal", 1),
    Sketcher.Constraint("Horizontal", 3),
    Sketcher.Constraint("Vertical", 4),
    Sketcher.Constraint("Horizontal", 5),
    Sketcher.Constraint("Horizontal", 7),
    Sketcher.Constraint("Horizontal", 9),
    Sketcher.Constraint("Vertical", 10),
    Sketcher.Constraint("Horizontal", 11),
    Sketcher.Constraint("Coincident", 0, 3, -1, 1),
    Sketcher.Constraint("Coincident", 2, 3, -1, 1),
    Sketcher.Constraint("Coincident", 6, 3, -1, 1),
    Sketcher.Constraint("Coincident", 8, 3, -1, 1),
    Sketcher.Constraint("Equal", 6, 8),
    Sketcher.Constraint("Symmetric", 2, 1, 8, 1, -1, 1),
    Sketcher.Constraint("Symmetric", 4, 2, 10, 2, -1, 1),
    Sketcher.Constraint("Horizontal", 5, 2, 8, 1),
    Sketcher.Constraint("Radius", 0, Q("15.5 mm")),
    Sketcher.Constraint("DistanceY", 4, 2, 4, 1, Q("2 mm")),
    Sketcher.Constraint("Radius", 2, Q("8.37 mm")),
    Sketcher.Constraint("DistanceY", 0, 1, -1, 1, Q("7.5 mm")),
    Sketcher.Constraint("DistanceX", -1, 1, 3, 2, Q("11.17 mm")),
    Sketcher.Constraint("DistanceY", 6, 1, -1, 1, Q("5.45 mm")),
])
sketch6.setExpression("Constraints[28]", "Params.sketch6_radius")
sketch6.setExpression("Constraints[29]", "Params.sketch6_height")
sketch6.setExpression("Constraints[30]", "Params.sketch6_radius2")
pad4 = doc.addObject("PartDesign::Pad", "Pad003")
body3.addObject(pad4)
pad4.Profile = sketch6
pad4.setExpression("Length", "Params.pad4_length")

doc.recompute()
